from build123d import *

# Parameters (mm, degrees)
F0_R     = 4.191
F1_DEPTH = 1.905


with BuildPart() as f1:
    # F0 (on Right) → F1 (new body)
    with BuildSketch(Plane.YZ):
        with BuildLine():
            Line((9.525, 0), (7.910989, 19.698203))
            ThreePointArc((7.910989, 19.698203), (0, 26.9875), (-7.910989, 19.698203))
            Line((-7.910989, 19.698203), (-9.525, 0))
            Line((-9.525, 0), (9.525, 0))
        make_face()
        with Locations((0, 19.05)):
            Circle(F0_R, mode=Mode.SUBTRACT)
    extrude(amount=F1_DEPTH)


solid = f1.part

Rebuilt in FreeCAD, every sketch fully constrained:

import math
import FreeCAD as App
import Part
import Sketcher
Q = App.Units.Quantity

doc = App.newDocument("Part")
params = doc.addObject("Spreadsheet::Sheet", "Params")
for row, (alias, value) in enumerate([
    ("sketch1_diameter", "0.33 in"),
    ("sketch1_radius", "0.3125 in"),
    ("sketch1_width", "0.75 in"),
    ("pad1_length", "0.075 in"),
], start=1):
    params.set(f"A{row}", alias)
    params.set(f"B{row}", "=" + value)
    params.setAlias(f"B{row}", alias)

body = doc.addObject("PartDesign::Body", "Body")

# Sketch on YZ plane
sketch1 = body.newObject("Sketcher::SketchObject", "Sketch")
sketch1.AttachmentSupport = (doc.getObject("YZ_Plane"), [""])
sketch1.MapMode = "FlatFace"
sketch1.addGeometry(Part.LineSegment(App.Vector(9.5, 0, 0), App.Vector(7.9, 19.7, 0)), False)
sketch1.addGeometry(Part.ArcOfCircle(Part.Circle(App.Vector(0, 19, 0), App.Vector(0, 0, 1), 7.9), math.radians(5), math.radians(175)), False)
sketch1.addGeometry(Part.LineSegment(App.Vector(-7.9, 19.7, 0), App.Vector(-9.5, 0, 0)), False)
sketch1.addGeometry(Part.LineSegment(App.Vector(-9.5, 0, 0), App.Vector(9.5, 0, 0)), False)
sketch1.addGeometry(Part.Circle(App.Vector(0, 19.1, 0), App.Vector(0, 0, 1), 4.2), False)
sketch1.addConstraint(Sketcher.Constraint("Tangent", 0, 2, 1, 1))
sketch1.addConstraint(Sketcher.Constraint("Tangent", 1, 2, 2, 1))
sketch1.addConstraint(Sketcher.Constraint("Coincident", 2, 2, 3, 1))
sketch1.addConstraint(Sketcher.Constraint("Coincident", 3, 2, 0, 1))
sketch1.addConstraint(Sketcher.Constraint("Horizontal", 3))
sketch1.addConstraint(Sketcher.Constraint("Coincident", 4, 3, 1, 3))
sketch1.addConstraint(Sketcher.Constraint("Symmetric", 2, 2, 3, 2, -1, 1))
sketch1.addConstraint(Sketcher.Constraint("PointOnObject", 1, 3, -2))
sketch1.addConstraint(Sketcher.Constraint("Diameter", 4, Q("0.33 in")))
sketch1.addConstraint(Sketcher.Constraint("Radius", 1, Q("0.3125 in")))
sketch1.addConstraint(Sketcher.Constraint("DistanceX", 3, 1, 3, 2, Q("0.75 in")))
sketch1.addConstraint(Sketcher.Constraint("DistanceY", -1, 1, 1, 3, Q("0.75 in")))
sketch1.setExpression("Constraints[8]", "Params.sketch1_diameter")
sketch1.setExpression("Constraints[9]", "Params.sketch1_radius")
sketch1.setExpression("Constraints[10]", "Params.sketch1_width")
pad1 = body.newObject("PartDesign::Pad", "Pad")
pad1.Profile = sketch1
pad1.setExpression("Length", "Params.pad1_length")

doc.recompute()
